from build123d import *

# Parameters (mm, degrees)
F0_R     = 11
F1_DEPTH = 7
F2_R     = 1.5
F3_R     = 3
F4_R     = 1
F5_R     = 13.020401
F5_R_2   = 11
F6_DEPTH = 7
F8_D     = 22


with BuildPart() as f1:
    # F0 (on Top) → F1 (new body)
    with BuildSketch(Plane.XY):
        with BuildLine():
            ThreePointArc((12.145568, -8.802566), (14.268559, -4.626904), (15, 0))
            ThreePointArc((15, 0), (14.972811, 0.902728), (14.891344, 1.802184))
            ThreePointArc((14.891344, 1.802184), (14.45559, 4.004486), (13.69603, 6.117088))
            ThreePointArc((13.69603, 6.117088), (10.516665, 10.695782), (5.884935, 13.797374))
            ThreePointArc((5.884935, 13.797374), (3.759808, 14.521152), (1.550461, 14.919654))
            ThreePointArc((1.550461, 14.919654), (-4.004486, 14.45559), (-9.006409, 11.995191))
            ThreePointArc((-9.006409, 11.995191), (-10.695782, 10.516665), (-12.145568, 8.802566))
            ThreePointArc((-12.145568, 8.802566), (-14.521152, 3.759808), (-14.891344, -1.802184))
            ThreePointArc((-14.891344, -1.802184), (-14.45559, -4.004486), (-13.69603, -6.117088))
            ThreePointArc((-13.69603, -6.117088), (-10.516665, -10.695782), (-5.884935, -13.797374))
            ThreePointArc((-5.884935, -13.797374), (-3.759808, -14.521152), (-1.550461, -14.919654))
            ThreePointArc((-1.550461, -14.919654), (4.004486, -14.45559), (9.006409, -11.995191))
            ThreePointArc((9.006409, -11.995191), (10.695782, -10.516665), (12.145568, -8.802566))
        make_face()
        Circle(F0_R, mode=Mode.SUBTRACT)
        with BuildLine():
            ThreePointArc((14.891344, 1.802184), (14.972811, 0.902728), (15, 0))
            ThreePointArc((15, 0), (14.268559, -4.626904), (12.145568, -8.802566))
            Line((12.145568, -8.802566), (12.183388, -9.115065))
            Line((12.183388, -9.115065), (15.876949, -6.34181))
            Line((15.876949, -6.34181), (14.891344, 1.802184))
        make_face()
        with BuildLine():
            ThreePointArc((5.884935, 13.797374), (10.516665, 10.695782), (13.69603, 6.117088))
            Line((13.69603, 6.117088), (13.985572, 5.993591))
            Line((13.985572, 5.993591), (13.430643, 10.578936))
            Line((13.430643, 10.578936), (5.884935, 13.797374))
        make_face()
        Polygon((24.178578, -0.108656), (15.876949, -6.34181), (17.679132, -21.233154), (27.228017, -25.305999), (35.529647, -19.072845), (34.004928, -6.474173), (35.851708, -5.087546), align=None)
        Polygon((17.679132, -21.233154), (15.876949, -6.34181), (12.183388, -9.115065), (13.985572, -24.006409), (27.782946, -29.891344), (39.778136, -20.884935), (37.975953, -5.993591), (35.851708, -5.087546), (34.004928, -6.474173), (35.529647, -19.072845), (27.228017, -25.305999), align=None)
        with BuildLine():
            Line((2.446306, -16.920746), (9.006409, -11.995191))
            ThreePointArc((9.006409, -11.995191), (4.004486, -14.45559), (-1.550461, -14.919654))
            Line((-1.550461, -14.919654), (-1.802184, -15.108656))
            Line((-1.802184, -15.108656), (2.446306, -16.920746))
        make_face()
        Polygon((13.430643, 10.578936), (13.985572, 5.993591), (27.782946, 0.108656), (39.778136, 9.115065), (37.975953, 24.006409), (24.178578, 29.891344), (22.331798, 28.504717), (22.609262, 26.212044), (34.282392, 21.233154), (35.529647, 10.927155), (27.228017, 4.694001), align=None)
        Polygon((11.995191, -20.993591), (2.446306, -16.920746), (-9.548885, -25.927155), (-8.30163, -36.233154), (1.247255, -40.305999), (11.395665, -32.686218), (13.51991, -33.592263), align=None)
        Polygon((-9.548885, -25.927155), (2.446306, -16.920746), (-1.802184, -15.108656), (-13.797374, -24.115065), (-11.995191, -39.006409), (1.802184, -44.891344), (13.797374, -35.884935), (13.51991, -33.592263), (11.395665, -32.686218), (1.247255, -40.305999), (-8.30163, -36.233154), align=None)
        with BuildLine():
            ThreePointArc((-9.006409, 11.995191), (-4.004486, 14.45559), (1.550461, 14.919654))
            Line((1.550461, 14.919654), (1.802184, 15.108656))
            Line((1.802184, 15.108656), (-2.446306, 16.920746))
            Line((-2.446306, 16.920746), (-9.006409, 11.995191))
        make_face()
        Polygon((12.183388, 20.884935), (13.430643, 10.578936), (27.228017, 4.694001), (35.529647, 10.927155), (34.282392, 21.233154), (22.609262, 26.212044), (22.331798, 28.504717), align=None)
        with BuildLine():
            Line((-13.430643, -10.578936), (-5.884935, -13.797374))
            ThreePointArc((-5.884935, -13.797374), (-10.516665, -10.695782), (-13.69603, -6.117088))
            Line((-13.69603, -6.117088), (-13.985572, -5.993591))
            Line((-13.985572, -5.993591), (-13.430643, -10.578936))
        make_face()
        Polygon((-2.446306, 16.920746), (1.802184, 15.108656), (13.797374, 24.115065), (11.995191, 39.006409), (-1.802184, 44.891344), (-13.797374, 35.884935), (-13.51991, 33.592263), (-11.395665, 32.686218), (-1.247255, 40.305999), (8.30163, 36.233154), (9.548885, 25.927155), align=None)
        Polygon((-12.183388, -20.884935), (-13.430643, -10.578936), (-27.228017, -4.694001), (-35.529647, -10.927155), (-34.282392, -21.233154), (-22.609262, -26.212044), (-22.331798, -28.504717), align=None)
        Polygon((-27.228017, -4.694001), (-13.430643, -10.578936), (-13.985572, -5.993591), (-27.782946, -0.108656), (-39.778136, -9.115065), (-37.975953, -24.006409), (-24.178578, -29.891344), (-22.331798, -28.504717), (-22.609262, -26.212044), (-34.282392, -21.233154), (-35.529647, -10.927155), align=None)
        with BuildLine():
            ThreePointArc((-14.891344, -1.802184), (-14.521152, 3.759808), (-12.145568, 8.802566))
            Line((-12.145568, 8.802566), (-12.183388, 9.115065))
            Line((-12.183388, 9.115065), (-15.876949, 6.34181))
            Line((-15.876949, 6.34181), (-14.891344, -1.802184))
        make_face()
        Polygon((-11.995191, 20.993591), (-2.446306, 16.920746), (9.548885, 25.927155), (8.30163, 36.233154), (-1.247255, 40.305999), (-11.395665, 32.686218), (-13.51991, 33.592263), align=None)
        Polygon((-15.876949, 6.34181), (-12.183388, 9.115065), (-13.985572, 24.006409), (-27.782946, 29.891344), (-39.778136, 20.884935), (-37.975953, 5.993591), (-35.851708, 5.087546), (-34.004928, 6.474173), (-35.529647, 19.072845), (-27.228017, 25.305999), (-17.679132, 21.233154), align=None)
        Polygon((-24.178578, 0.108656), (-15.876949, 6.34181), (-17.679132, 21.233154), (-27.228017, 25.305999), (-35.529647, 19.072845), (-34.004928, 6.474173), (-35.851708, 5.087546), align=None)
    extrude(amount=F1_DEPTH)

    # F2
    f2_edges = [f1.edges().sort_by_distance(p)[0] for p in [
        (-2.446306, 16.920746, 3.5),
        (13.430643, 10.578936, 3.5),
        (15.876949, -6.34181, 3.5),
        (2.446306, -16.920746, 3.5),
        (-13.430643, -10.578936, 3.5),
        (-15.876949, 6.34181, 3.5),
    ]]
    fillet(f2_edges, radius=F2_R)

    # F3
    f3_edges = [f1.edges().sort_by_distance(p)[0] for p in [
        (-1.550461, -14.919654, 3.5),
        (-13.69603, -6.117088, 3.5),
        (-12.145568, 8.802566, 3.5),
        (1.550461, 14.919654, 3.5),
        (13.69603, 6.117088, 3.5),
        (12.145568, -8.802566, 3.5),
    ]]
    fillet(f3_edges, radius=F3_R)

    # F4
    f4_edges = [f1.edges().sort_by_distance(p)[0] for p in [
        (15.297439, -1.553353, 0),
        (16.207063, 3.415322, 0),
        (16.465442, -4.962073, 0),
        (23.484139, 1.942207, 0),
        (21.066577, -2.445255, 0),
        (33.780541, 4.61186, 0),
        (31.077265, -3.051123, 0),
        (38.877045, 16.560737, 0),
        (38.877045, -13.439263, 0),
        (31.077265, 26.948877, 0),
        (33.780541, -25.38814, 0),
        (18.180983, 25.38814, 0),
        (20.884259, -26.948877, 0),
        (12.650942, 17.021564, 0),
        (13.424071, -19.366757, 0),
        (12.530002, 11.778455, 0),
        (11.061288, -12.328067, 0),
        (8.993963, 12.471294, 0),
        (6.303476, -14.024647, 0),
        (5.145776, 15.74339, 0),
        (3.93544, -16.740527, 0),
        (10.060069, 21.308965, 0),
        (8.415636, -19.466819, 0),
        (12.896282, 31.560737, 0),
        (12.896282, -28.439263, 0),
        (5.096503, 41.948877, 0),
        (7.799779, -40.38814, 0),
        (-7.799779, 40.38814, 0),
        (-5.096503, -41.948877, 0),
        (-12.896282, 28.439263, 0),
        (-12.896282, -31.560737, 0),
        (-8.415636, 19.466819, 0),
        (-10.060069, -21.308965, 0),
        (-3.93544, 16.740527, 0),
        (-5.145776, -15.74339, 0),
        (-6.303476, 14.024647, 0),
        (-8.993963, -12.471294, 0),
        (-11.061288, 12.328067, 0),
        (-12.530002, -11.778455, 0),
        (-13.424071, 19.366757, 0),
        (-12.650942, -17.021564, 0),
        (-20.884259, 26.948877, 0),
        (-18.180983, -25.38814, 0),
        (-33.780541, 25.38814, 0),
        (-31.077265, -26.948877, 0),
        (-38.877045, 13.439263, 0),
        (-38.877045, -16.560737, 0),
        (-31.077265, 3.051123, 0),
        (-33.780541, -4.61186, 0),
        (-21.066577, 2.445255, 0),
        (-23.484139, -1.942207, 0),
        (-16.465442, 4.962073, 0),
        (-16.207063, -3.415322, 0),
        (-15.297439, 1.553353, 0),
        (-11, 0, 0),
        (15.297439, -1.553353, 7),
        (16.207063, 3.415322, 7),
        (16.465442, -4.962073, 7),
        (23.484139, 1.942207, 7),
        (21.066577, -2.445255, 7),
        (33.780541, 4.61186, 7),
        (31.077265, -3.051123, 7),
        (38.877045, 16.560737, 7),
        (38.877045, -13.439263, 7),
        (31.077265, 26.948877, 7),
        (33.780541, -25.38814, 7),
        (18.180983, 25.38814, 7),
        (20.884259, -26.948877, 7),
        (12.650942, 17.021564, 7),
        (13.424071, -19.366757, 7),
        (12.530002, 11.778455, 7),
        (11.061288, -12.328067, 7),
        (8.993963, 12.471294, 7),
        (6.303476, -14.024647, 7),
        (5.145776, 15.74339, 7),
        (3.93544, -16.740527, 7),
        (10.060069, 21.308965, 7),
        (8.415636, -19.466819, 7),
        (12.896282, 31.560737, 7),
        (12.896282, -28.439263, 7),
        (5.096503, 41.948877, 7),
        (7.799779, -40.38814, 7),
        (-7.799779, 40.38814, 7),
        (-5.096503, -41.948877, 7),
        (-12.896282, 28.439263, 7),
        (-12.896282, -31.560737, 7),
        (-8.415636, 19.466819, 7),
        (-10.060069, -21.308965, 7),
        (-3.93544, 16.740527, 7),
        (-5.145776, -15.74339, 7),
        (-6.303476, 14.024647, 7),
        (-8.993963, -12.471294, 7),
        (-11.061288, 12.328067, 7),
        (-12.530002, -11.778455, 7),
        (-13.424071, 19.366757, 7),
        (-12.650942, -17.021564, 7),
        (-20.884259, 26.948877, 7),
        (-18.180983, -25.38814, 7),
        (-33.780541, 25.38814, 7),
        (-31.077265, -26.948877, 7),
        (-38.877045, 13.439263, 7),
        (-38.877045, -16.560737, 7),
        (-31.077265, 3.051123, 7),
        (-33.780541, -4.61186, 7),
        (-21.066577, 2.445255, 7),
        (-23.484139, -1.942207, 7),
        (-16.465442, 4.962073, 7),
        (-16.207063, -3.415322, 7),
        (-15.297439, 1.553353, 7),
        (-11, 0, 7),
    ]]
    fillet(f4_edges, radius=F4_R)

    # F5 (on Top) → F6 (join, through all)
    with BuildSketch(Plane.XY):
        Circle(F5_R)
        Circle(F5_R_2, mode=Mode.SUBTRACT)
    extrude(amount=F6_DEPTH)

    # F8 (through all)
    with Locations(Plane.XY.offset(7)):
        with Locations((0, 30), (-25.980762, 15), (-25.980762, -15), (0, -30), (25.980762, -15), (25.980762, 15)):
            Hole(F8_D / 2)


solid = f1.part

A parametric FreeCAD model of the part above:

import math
import FreeCAD as App
import Part
import Sketcher
from FreeCAD import Vector
Q = App.Units.Quantity


def edges_at(feature, points):
    """Names of the edges that pass closest to the given points."""
    edges = feature.Shape.Edges
    near = lambda p: min(range(len(edges)), key=lambda i: edges[i].distToShape(Part.Vertex(*p))[0])
    return sorted({f"Edge{near(p) + 1}" for p in points})

doc = App.newDocument("Part")
params = doc.addObject("Spreadsheet::Sheet", "Params")
for row, (alias, value) in enumerate([
    ("sketch1_diameter", "22 mm"),
    ("sketch1_length", "15 mm"),
    ("pad1_length", "7 mm"),
    ("fillet_radius", "1.5 mm"),
    ("fillet2_radius", "3 mm"),
    ("fillet3_radius", "1 mm"),
    ("sketch2_diameter", "22 mm"),
    ("pad2_length", "7 mm"),
    ("sketch3_diameter", "22 mm"),
    ("hole_diameter", "22 mm"),
], start=1):
    params.set(f"A{row}", alias)
    params.set(f"B{row}", "=" + value)
    params.setAlias(f"B{row}", alias)

body = doc.addObject("PartDesign::Body", "Body")

# Sketch on XY plane
sketch1 = body.newObject("Sketcher::SketchObject", "Sketch")
sketch1.AttachmentSupport = (doc.getObject("XY_Plane"), [""])
sketch1.MapMode = "FlatFace"
sketch1.addGeometry([
    Part.ArcOfCircle(Part.Circle(Vector(-0.000012, 0.000009, 0), Vector(0, 0, 1), 15.000014), math.radians(-53.09948), math.radians(-35.932925)),  # 0
    Part.LineSegment(Vector(12.145568, -8.802566, 0), Vector(12.183388, -9.115065, 0)),  # 1
    Part.LineSegment(Vector(12.183388, -9.115065, 0), Vector(13.985572, -24.006409, 0)),  # 2
    Part.LineSegment(Vector(13.985572, -24.006409, 0), Vector(27.782946, -29.891344, 0)),  # 3
    Part.LineSegment(Vector(27.782946, -29.891344, 0), Vector(39.778136, -20.884935, 0)),  # 4
    Part.LineSegment(Vector(39.778136, -20.884935, 0), Vector(37.975953, -5.993591, 0)),  # 5
    Part.LineSegment(Vector(37.975953, -5.993591, 0), Vector(35.851708, -5.087546, 0)),  # 6
    Part.LineSegment(Vector(35.851708, -5.087546, 0), Vector(24.178578, -0.108656, 0)),  # 7
    Part.LineSegment(Vector(24.178578, -0.108656, 0), Vector(15.876949, -6.34181, 0)),  # 8
    Part.LineSegment(Vector(15.876949, -6.34181, 0), Vector(14.891344, 1.802184, 0)),  # 9
    Part.ArcOfCircle(Part.Circle(Vector(-0.000023, -0.000005, 0), Vector(0, 0, 1), 15.000023), math.radians(6.900515), math.radians(24.067059)),  # 10
    Part.LineSegment(Vector(13.69603, 6.117088, 0), Vector(13.985572, 5.993591, 0)),  # 11
    Part.LineSegment(Vector(13.985572, 5.993591, 0), Vector(27.782946, 0.108656, 0)),  # 12
    Part.LineSegment(Vector(27.782946, 0.108656, 0), Vector(39.778136, 9.115065, 0)),  # 13
    Part.LineSegment(Vector(39.778136, 9.115065, 0), Vector(37.975953, 24.006409, 0)),  # 14
    Part.LineSegment(Vector(37.975953, 24.006409, 0), Vector(24.178578, 29.891344, 0)),  # 15
    Part.LineSegment(Vector(24.178578, 29.891344, 0), Vector(22.331798, 28.504717, 0)),  # 16
    Part.LineSegment(Vector(22.331798, 28.504717, 0), Vector(12.183388, 20.884935, 0)),  # 17
    Part.LineSegment(Vector(12.183388, 20.884935, 0), Vector(13.430643, 10.578936, 0)),  # 18
    Part.LineSegment(Vector(13.430643, 10.578936, 0), Vector(5.884935, 13.797374, 0)),  # 19
    Part.ArcOfCircle(Part.Circle(Vector(0.000009, 0.000042, 0), Vector(0, 0, 1), 14.999957), math.radians(66.900474), math.radians(84.067097)),  # 20
    Part.LineSegment(Vector(1.550461, 14.919654, 0), Vector(1.802184, 15.108656, 0)),  # 21
    Part.LineSegment(Vector(1.802184, 15.108656, 0), Vector(13.797374, 24.115065, 0)),  # 22
    Part.LineSegment(Vector(13.797374, 24.115065, 0), Vector(11.995191, 39.006409, 0)),  # 23
    Part.LineSegment(Vector(11.995191, 39.006409, 0), Vector(-1.802184, 44.891344, 0)),  # 24
    Part.LineSegment(Vector(-1.802184, 44.891344, 0), Vector(-13.797374, 35.884935, 0)),  # 25
    Part.LineSegment(Vector(-13.797374, 35.884935, 0), Vector(-13.51991, 33.592263, 0)),  # 26
    Part.LineSegment(Vector(-13.51991, 33.592263, 0), Vector(-11.995191, 20.993591, 0)),  # 27
    Part.LineSegment(Vector(-11.995191, 20.993591, 0), Vector(-2.446306, 16.920746, 0)),  # 28
    Part.LineSegment(Vector(-2.446306, 16.920746, 0), Vector(-9.006409, 11.995191, 0)),  # 29
    Part.ArcOfCircle(Part.Circle(Vector(0.000012, -0.000009, 0), Vector(0, 0, 1), 15.000014), math.radians(126.90052), math.radians(144.067075)),  # 30
    Part.LineSegment(Vector(-12.145568, 8.802566, 0), Vector(-12.183388, 9.115065, 0)),  # 31
    Part.LineSegment(Vector(-12.183388, 9.115065, 0), Vector(-13.985572, 24.006409, 0)),  # 32
    Part.LineSegment(Vector(-13.985572, 24.006409, 0), Vector(-27.782946, 29.891344, 0)),  # 33
    Part.LineSegment(Vector(-27.782946, 29.891344, 0), Vector(-39.778136, 20.884935, 0)),  # 34
    Part.LineSegment(Vector(-39.778136, 20.884935, 0), Vector(-37.975953, 5.993591, 0)),  # 35
    Part.LineSegment(Vector(-37.975953, 5.993591, 0), Vector(-35.851708, 5.087546, 0)),  # 36
    Part.LineSegment(Vector(-35.851708, 5.087546, 0), Vector(-24.178578, 0.108656, 0)),  # 37
    Part.LineSegment(Vector(-24.178578, 0.108656, 0), Vector(-15.876949, 6.34181, 0)),  # 38
    Part.LineSegment(Vector(-15.876949, 6.34181, 0), Vector(-14.891344, -1.802184, 0)),  # 39
    Part.ArcOfCircle(Part.Circle(Vector(0.000023, 0.000005, 0), Vector(0, 0, 1), 15.000023), math.radians(-173.099485), math.radians(-155.932941)),  # 40
    Part.LineSegment(Vector(-13.69603, -6.117088, 0), Vector(-13.985572, -5.993591, 0)),  # 41
    Part.LineSegment(Vector(-13.985572, -5.993591, 0), Vector(-27.782946, -0.108656, 0)),  # 42
    Part.LineSegment(Vector(-27.782946, -0.108656, 0), Vector(-39.778136, -9.115065, 0)),  # 43
    Part.LineSegment(Vector(-39.778136, -9.115065, 0), Vector(-37.975953, -24.006409, 0)),  # 44
    Part.LineSegment(Vector(-37.975953, -24.006409, 0), Vector(-24.178578, -29.891344, 0)),  # 45
    Part.LineSegment(Vector(-24.178578, -29.891344, 0), Vector(-22.331798, -28.504717, 0)),  # 46
    Part.LineSegment(Vector(-22.331798, -28.504717, 0), Vector(-12.183388, -20.884935, 0)),  # 47
    Part.LineSegment(Vector(-12.183388, -20.884935, 0), Vector(-13.430643, -10.578936, 0)),  # 48
    Part.LineSegment(Vector(-13.430643, -10.578936, 0), Vector(-5.884935, -13.797374, 0)),  # 49
    Part.ArcOfCircle(Part.Circle(Vector(-0.000009, -0.000042, 0), Vector(0, 0, 1), 14.999957), math.radians(-113.099526), math.radians(-95.932903)),  # 50
    Part.LineSegment(Vector(-1.550461, -14.919654, 0), Vector(-1.802184, -15.108656, 0)),  # 51
    Part.LineSegment(Vector(-1.802184, -15.108656, 0), Vector(-13.797374, -24.115065, 0)),  # 52
    Part.LineSegment(Vector(-13.797374, -24.115065, 0), Vector(-11.995191, -39.006409, 0)),  # 53
    Part.LineSegment(Vector(-11.995191, -39.006409, 0), Vector(1.802184, -44.891344, 0)),  # 54
    Part.LineSegment(Vector(1.802184, -44.891344, 0), Vector(13.797374, -35.884935, 0)),  # 55
    Part.LineSegment(Vector(13.797374, -35.884935, 0), Vector(13.51991, -33.592263, 0)),  # 56
    Part.LineSegment(Vector(13.51991, -33.592263, 0), Vector(11.995191, -20.993591, 0)),  # 57
    Part.LineSegment(Vector(11.995191, -20.993591, 0), Vector(2.446306, -16.920746, 0)),  # 58
    Part.LineSegment(Vector(2.446306, -16.920746, 0), Vector(9.006409, -11.995191, 0)),  # 59
    Part.Circle(Vector(0, 0, 0), Vector(0, 0, 1), 11),  # 60
], False)
sketch1.addConstraint([
    Sketcher.Constraint("Coincident", 0, 2, 1, 1),
    Sketcher.Constraint("Coincident", 1, 2, 2, 1),
    Sketcher.Constraint("Coincident", 2, 2, 3, 1),
    Sketcher.Constraint("Coincident", 3, 2, 4, 1),
    Sketcher.Constraint("Coincident", 4, 2, 5, 1),
    Sketcher.Constraint("Coincident", 5, 2, 6, 1),
    Sketcher.Constraint("Coincident", 6, 2, 7, 1),
    Sketcher.Constraint("Coincident", 7, 2, 8, 1),
    Sketcher.Constraint("Coincident", 8, 2, 9, 1),
    Sketcher.Constraint("Tangent", 9, 2, 10, 1),
    Sketcher.Constraint("Coincident", 10, 2, 11, 1),
    Sketcher.Constraint("Coincident", 11, 2, 12, 1),
    Sketcher.Constraint("Coincident", 12, 2, 13, 1),
    Sketcher.Constraint("Coincident", 13, 2, 14, 1),
    Sketcher.Constraint("Coincident", 14, 2, 15, 1),
    Sketcher.Constraint("Coincident", 15, 2, 16, 1),
    Sketcher.Constraint("Coincident", 16, 2, 17, 1),
    Sketcher.Constraint("Coincident", 17, 2, 18, 1),
    Sketcher.Constraint("Coincident", 18, 2, 19, 1),
    Sketcher.Constraint("Tangent", 19, 2, 20, 1),
    Sketcher.Constraint("Coincident", 20, 2, 21, 1),
    Sketcher.Constraint("Coincident", 21, 2, 22, 1),
    Sketcher.Constraint("Coincident", 22, 2, 23, 1),
    Sketcher.Constraint("Coincident", 23, 2, 24, 1),
    Sketcher.Constraint("Coincident", 24, 2, 25, 1),
    Sketcher.Constraint("Coincident", 25, 2, 26, 1),
    Sketcher.Constraint("Coincident", 26, 2, 27, 1),
    Sketcher.Constraint("Coincident", 27, 2, 28, 1),
    Sketcher.Constraint("Coincident", 28, 2, 29, 1),
    Sketcher.Constraint("Tangent", 29, 2, 30, 1),
    Sketcher.Constraint("Coincident", 30, 2, 31, 1),
    Sketcher.Constraint("Coincident", 31, 2, 32, 1),
    Sketcher.Constraint("Coincident", 32, 2, 33, 1),
    Sketcher.Constraint("Coincident", 33, 2, 34, 1),
    Sketcher.Constraint("Coincident", 34, 2, 35, 1),
    Sketcher.Constraint("Coincident", 35, 2, 36, 1),
    Sketcher.Constraint("Coincident", 36, 2, 37, 1),
    Sketcher.Constraint("Coincident", 37, 2, 38, 1),
    Sketcher.Constraint("Coincident", 38, 2, 39, 1),
    Sketcher.Constraint("Tangent", 39, 2, 40, 1),
    Sketcher.Constraint("Coincident", 40, 2, 41, 1),
    Sketcher.Constraint("Coincident", 41, 2, 42, 1),
    Sketcher.Constraint("Coincident", 42, 2, 43, 1),
    Sketcher.Constraint("Coincident", 43, 2, 44, 1),
    Sketcher.Constraint("Coincident", 44, 2, 45, 1),
    Sketcher.Constraint("Coincident", 45, 2, 46, 1),
    Sketcher.Constraint("Coincident", 46, 2, 47, 1),
    Sketcher.Constraint("Coincident", 47, 2, 48, 1),
    Sketcher.Constraint("Coincident", 48, 2, 49, 1),
    Sketcher.Constraint("Tangent", 49, 2, 50, 1),
    Sketcher.Constraint("Coincident", 50, 2, 51, 1),
    Sketcher.Constraint("Coincident", 51, 2, 52, 1),
    Sketcher.Constraint("Coincident", 52, 2, 53, 1),
    Sketcher.Constraint("Coincident", 53, 2, 54, 1),
    Sketcher.Constraint("Coincident", 54, 2, 55, 1),
    Sketcher.Constraint("Coincident", 55, 2, 56, 1),
    Sketcher.Constraint("Coincident", 56, 2, 57, 1),
    Sketcher.Constraint("Coincident", 57, 2, 58, 1),
    Sketcher.Constraint("Coincident", 58, 2, 59, 1),
    Sketcher.Constraint("Tangent", 59, 2, 0, 1),
    Sketcher.Constraint("Coincident", 60, 3, -1, 1),
    Sketcher.Constraint("Equal", 0, 30),
    Sketcher.Constraint("Equal", 10, 40),
    Sketcher.Constraint("Equal", 20, 50),
    Sketcher.Constraint("Symmetric", 0, 3, 30, 3, -1, 1),
    Sketcher.Constraint("Symmetric", 10, 3, 40, 3, -1, 1),
    Sketcher.Constraint("Symmetric", 20, 3, 50, 3, -1, 1),
    Sketcher.Constraint("Symmetric", 1, 2, 31, 2, -1, 1),
    Sketcher.Constraint("Symmetric", 2, 2, 32, 2, -1, 1),
    Sketcher.Constraint("Symmetric", 3, 2, 33, 2, -1, 1),
    Sketcher.Constraint("Symmetric", 4, 2, 34, 2, -1, 1),
    Sketcher.Constraint("Symmetric", 5, 2, 35, 2, -1, 1),
    Sketcher.Constraint("Symmetric", 6, 2, 36, 2, -1, 1),
    Sketcher.Constraint("Symmetric", 7, 2, 37, 2, -1, 1),
    Sketcher.Constraint("Symmetric", 8, 2, 38, 2, -1, 1),
    Sketcher.Constraint("Symmetric", 11, 2, 41, 2, -1, 1),
    Sketcher.Constraint("Symmetric", 12, 2, 42, 2, -1, 1),
    Sketcher.Constraint("Symmetric", 13, 2, 43, 2, -1, 1),
    Sketcher.Constraint("Symmetric", 14, 2, 44, 2, -1, 1),
    Sketcher.Constraint("Symmetric", 15, 2, 45, 2, -1, 1),
    Sketcher.Constraint("Symmetric", 16, 2, 46, 2, -1, 1),
    Sketcher.Constraint("Symmetric", 17, 2, 47, 2, -1, 1),
    Sketcher.Constraint("Symmetric", 18, 2, 48, 2, -1, 1),
    Sketcher.Constraint("Symmetric", 21, 2, 51, 2, -1, 1),
    Sketcher.Constraint("Symmetric", 22, 2, 52, 2, -1, 1),
    Sketcher.Constraint("Symmetric", 23, 2, 53, 2, -1, 1),
    Sketcher.Constraint("Symmetric", 24, 2, 54, 2, -1, 1),
    Sketcher.Constraint("Symmetric", 25, 2, 55, 2, -1, 1),
    Sketcher.Constraint("Symmetric", 26, 2, 56, 2, -1, 1),
    Sketcher.Constraint("Symmetric", 27, 2, 57, 2, -1, 1),
    Sketcher.Constraint("Symmetric", 28, 2, 58, 2, -1, 1),
    Sketcher.Constraint("Parallel", 2, 5),
    Sketcher.Constraint("Parallel", 3, 6),
    Sketcher.Constraint("Parallel", 6, 7),
    Sketcher.Constraint("Parallel", 4, 8),
    Sketcher.Constraint("Parallel", 5, 9),
    Sketcher.Constraint("Parallel", 7, 11),
    Sketcher.Constraint("Parallel", 11, 12),
    Sketcher.Constraint("Parallel", 8, 13),
    Sketcher.Constraint("Parallel", 9, 14),
    Sketcher.Constraint("Parallel", 12, 15),
    Sketcher.Constraint("Parallel", 13, 16),
    Sketcher.Constraint("Parallel", 16, 17),
    Sketcher.Constraint("Parallel", 14, 18),
    Sketcher.Constraint("Parallel", 15, 19),
    Sketcher.Constraint("Parallel", 17, 21),
    Sketcher.Constraint("Parallel", 21, 22),
    Sketcher.Constraint("Parallel", 18, 23),
    Sketcher.Constraint("Parallel", 19, 24),
    Sketcher.Constraint("Parallel", 22, 25),
    Sketcher.Constraint("Parallel", 23, 26),
    Sketcher.Constraint("Parallel", 26, 27),
    Sketcher.Constraint("Parallel", 24, 28),
    Sketcher.Constraint("Parallel", 25, 29),
    Sketcher.Constraint("Parallel", 1, 31),
    Sketcher.Constraint("Parallel", 37, 41),
    Sketcher.Constraint("Parallel", 47, 51),
    Sketcher.Constraint("Horizontal", 13, 2, 31, 2),
    Sketcher.Constraint("Horizontal", 14, 2, 32, 2),
    Sketcher.Constraint("Horizontal", 15, 2, 33, 2),
    Sketcher.Constraint("Horizontal", 17, 2, 34, 2),
    Sketcher.Constraint("Horizontal", 11, 2, 35, 2),
    Sketcher.Constraint("Horizontal", 12, 2, 37, 2),
    Sketcher.Constraint("Vertical", 2, 2, 11, 2),
    Sketcher.Constraint("Vertical", 3, 2, 12, 2),
    Sketcher.Constraint("Vertical", 4, 2, 13, 2),
    Sketcher.Constraint("Vertical", 24, 2, 51, 2),
    Sketcher.Constraint("Vertical", 25, 2, 52, 2),
    Sketcher.Constraint("Vertical", 27, 2, 53, 2),
    Sketcher.Constraint("Equal", 2, 3),
    Sketcher.Constraint("Equal", 3, 4),
    Sketcher.Constraint("Equal", 1, 11),
    Sketcher.Constraint("Equal", 6, 16),
    Sketcher.Constraint("Equal", 8, 18),
    Sketcher.Constraint("Equal", 9, 19),
    Sketcher.Constraint("Equal", 11, 21),
    Sketcher.Constraint("Equal", 15, 22),
    Sketcher.Constraint("Equal", 22, 23),
    Sketcher.Constraint("Equal", 23, 24),
    Sketcher.Constraint("Equal", 16, 26),
    Sketcher.Constraint("Equal", 18, 28),
    Sketcher.Constraint("Equal", 19, 29),
    Sketcher.Constraint("Diameter", 60, Q("22 mm")),
    Sketcher.Constraint("Distance", 2, Q("15 mm")),
    Sketcher.Constraint("Radius", 0, Q("15.000014 mm")),
    Sketcher.Constraint("Radius", 10, Q("15.000023 mm")),
    Sketcher.Constraint("Radius", 20, Q("14.999957 mm")),
    Sketcher.Constraint("Distance", 6, Q("2.309401 mm")),
    Sketcher.Constraint("Distance", 1, Q("0.314779 mm")),
    Sketcher.Constraint("DistanceX", -1, 1, 0, 2, Q("12.145568 mm")),
    Sketcher.Constraint("DistanceX", -1, 1, 1, 2, Q("12.183388 mm")),
    Sketcher.Constraint("DistanceY", 2, 2, -1, 1, Q("24.006409 mm")),
    Sketcher.Constraint("DistanceY", 5, 2, -1, 1, Q("5.993591 mm")),
    Sketcher.Constraint("DistanceX", -1, 1, 6, 2, Q("35.851708 mm")),
    Sketcher.Constraint("DistanceX", -1, 1, 8, 2, Q("15.876949 mm")),
])
sketch1.setExpression("Constraints[142]", "Params.sketch1_diameter")
sketch1.setExpression("Constraints[143]", "Params.sketch1_length")
pad1 = body.newObject("PartDesign::Pad", "Pad")
pad1.Profile = sketch1
pad1.setExpression("Length", "Params.pad1_length")
doc.recompute()

fillet = body.newObject("PartDesign::Fillet", "Fillet")
fillet.Base = (pad1, edges_at(pad1, [
    (-2.446, 16.921, 3.5),
    (13.431, 10.579, 3.5),
    (15.877, -6.342, 3.5),
    (2.446, -16.921, 3.5),
    (-13.431, -10.579, 3.5),
    (-15.877, 6.342, 3.5),
]))
fillet.setExpression("Radius", "Params.fillet_radius")
doc.recompute()

fillet2 = body.newObject("PartDesign::Fillet", "Fillet001")
fillet2.Base = (fillet, edges_at(fillet, [
    (-1.55, -14.92, 3.5),
    (-13.696, -6.117, 3.5),
    (-12.146, 8.803, 3.5),
    (1.55, 14.92, 3.5),
    (13.696, 6.117, 3.5),
    (12.146, -8.803, 3.5),
]))
fillet2.setExpression("Radius", "Params.fillet2_radius")
doc.recompute()

fillet3 = body.newObject("PartDesign::Fillet", "Fillet002")
fillet3.Base = (fillet2, edges_at(fillet2, [
    (15.297, -1.553, 0),
    (16.207, 3.415, 0),
    (16.465, -4.962, 0),
    (23.484, 1.942, 0),
    (21.067, -2.445, 0),
    (33.781, 4.612, 0),
    (30.015, -2.598, 0),
    (38.877, 16.561, 0),
    (38.877, -13.439, 0),
    (31.077, 26.949, 0),
    (33.781, -25.388, 0),
    (17.258, 24.695, 0),
    (20.884, -26.949, 0),
    (12.651, 17.022, 0),
    (13.424, -19.367, 0),
    (12.53, 11.778, 0),
    (11.061, -12.328, 0),
    (8.994, 12.471, 0),
    (6.303, -14.025, 0),
    (5.146, 15.743, 0),
    (3.935, -16.741, 0),
    (10.06, 21.309, 0),
    (8.416, -19.467, 0),
    (12.896, 31.561, 0),
    (12.758, -27.293, 0),
    (5.097, 41.949, 0),
    (7.8, -40.388, 0),
    (-7.8, 40.388, 0),
    (-5.097, -41.949, 0),
    (-12.758, 27.293, 0),
    (-12.896, -31.561, 0),
    (-8.416, 19.467, 0),
    (-10.06, -21.309, 0),
    (-3.935, 16.741, 0),
    (-5.146, -15.743, 0),
    (-6.303, 14.025, 0),
    (-8.994, -12.471, 0),
    (-11.061, 12.328, 0),
    (-12.53, -11.778, 0),
    (-13.424, 19.367, 0),
    (-12.651, -17.022, 0),
    (-20.884, 26.949, 0),
    (-17.258, -24.695, 0),
    (-33.781, 25.388, 0),
    (-31.077, -26.949, 0),
    (-38.877, 13.439, 0),
    (-38.877, -16.561, 0),
    (-30.015, 2.598, 0),
    (-33.781, -4.612, 0),
    (-21.067, 2.445, 0),
    (-23.484, -1.942, 0),
    (-16.465, 4.962, 0),
    (-16.207, -3.415, 0),
    (-15.297, 1.553, 0),
    (-11, 0, 0),
    (15.297, -1.553, 7),
    (16.207, 3.415, 7),
    (16.465, -4.962, 7),
    (23.484, 1.942, 7),
    (21.067, -2.445, 7),
    (33.781, 4.612, 7),
    (30.015, -2.598, 7),
    (38.877, 16.561, 7),
    (38.877, -13.439, 7),
    (31.077, 26.949, 7),
    (33.781, -25.388, 7),
    (17.258, 24.695, 7),
    (20.884, -26.949, 7),
    (12.651, 17.022, 7),
    (13.424, -19.367, 7),
    (12.53, 11.778, 7),
    (11.061, -12.328, 7),
    (8.994, 12.471, 7),
    (6.303, -14.025, 7),
    (5.146, 15.743, 7),
    (3.935, -16.741, 7),
    (10.06, 21.309, 7),
    (8.416, -19.467, 7),
    (12.896, 31.561, 7),
    (12.758, -27.293, 7),
    (5.097, 41.949, 7),
    (7.8, -40.388, 7),
    (-7.8, 40.388, 7),
    (-5.097, -41.949, 7),
    (-12.758, 27.293, 7),
    (-12.896, -31.561, 7),
    (-8.416, 19.467, 7),
    (-10.06, -21.309, 7),
    (-3.935, 16.741, 7),
    (-5.146, -15.743, 7),
    (-6.303, 14.025, 7),
    (-8.994, -12.471, 7),
    (-11.061, 12.328, 7),
    (-12.53, -11.778, 7),
    (-13.424, 19.367, 7),
    (-12.651, -17.022, 7),
    (-20.884, 26.949, 7),
    (-17.258, -24.695, 7),
    (-33.781, 25.388, 7),
    (-31.077, -26.949, 7),
    (-38.877, 13.439, 7),
    (-38.877, -16.561, 7),
    (-30.015, 2.598, 7),
    (-33.781, -4.612, 7),
    (-21.067, 2.445, 7),
    (-23.484, -1.942, 7),
    (-16.465, 4.962, 7),
    (-16.207, -3.415, 7),
    (-15.297, 1.553, 7),
    (-11, 0, 7),
]))
fillet3.setExpression("Radius", "Params.fillet3_radius")

# Sketch on XY plane
sketch2 = body.newObject("Sketcher::SketchObject", "Sketch001")
sketch2.AttachmentSupport = (doc.getObject("XY_Plane"), [""])
sketch2.MapMode = "FlatFace"
sketch2.addGeometry([
    Part.Circle(Vector(0, 0, 0), Vector(0, 0, 1), 13),
    Part.Circle(Vector(0, 0, 0), Vector(0, 0, 1), 11),
], False)
sketch2.addConstraint([
    Sketcher.Constraint("Coincident", 0, 3, -1, 1),
    Sketcher.Constraint("Coincident", 1, 3, -1, 1),
    Sketcher.Constraint("Diameter", 1, Q("22 mm")),
    Sketcher.Constraint("Diameter", 0, Q("26.040802 mm")),
])
sketch2.setExpression("Constraints[2]", "Params.sketch2_diameter")
pad2 = body.newObject("PartDesign::Pad", "Pad001")
pad2.Profile = sketch2
pad2.setExpression("Length", "Params.pad2_length")

# Sketch on XY plane
sketch3 = body.newObject("Sketcher::SketchObject", "Sketch002")
sketch3.AttachmentSupport = (doc.getObject("XY_Plane"), [""])
sketch3.MapMode = "FlatFace"
sketch3.AttachmentOffset = App.Placement(Vector(0, 0, 7), App.Rotation())
sketch3.addGeometry([
    Part.Circle(Vector(0, 30, 0), Vector(0, 0, 1), 11),  # 0
    Part.Circle(Vector(-26, 15, 0), Vector(0, 0, 1), 11),  # 1
    Part.Circle(Vector(-26, -15, 0), Vector(0, 0, 1), 11),  # 2
    Part.Circle(Vector(0, -30, 0), Vector(0, 0, 1), 11),  # 3
    Part.Circle(Vector(26, -15, 0), Vector(0, 0, 1), 11),  # 4
    Part.Circle(Vector(26, 15, 0), Vector(0, 0, 1), 11),  # 5
], False)
sketch3.addConstraint([
    Sketcher.Constraint("Equal", 0, 1),
    Sketcher.Constraint("Equal", 1, 2),
    Sketcher.Constraint("Equal", 2, 3),
    Sketcher.Constraint("Equal", 3, 4),
    Sketcher.Constraint("Equal", 4, 5),
    Sketcher.Constraint("Symmetric", 0, 3, 3, 3, -1, 1),
    Sketcher.Constraint("Symmetric", 1, 3, 4, 3, -1, 1),
    Sketcher.Constraint("Symmetric", 2, 3, 5, 3, -1, 1),
    Sketcher.Constraint("Symmetric", 2, 3, 4, 3, -2),
    Sketcher.Constraint("PointOnObject", 0, 3, -2),
    Sketcher.Constraint("Diameter", 0, Q("22 mm")),
    Sketcher.Constraint("DistanceY", -1, 1, 0, 3, Q("30 mm")),
    Sketcher.Constraint("DistanceY", -1, 1, 1, 3, Q("15 mm")),
    Sketcher.Constraint("DistanceX", 1, 3, -1, 1, Q("25.980762 mm")),
])
sketch3.setExpression("Constraints[10]", "Params.sketch3_diameter")
doc.recompute()
hole = body.newObject("PartDesign::Hole", "Hole")
hole.Profile = sketch3
hole.ThreadType = "None"
hole.setExpression("Diameter", "Params.hole_diameter")
hole.DepthType = "ThroughAll"

doc.recompute()
